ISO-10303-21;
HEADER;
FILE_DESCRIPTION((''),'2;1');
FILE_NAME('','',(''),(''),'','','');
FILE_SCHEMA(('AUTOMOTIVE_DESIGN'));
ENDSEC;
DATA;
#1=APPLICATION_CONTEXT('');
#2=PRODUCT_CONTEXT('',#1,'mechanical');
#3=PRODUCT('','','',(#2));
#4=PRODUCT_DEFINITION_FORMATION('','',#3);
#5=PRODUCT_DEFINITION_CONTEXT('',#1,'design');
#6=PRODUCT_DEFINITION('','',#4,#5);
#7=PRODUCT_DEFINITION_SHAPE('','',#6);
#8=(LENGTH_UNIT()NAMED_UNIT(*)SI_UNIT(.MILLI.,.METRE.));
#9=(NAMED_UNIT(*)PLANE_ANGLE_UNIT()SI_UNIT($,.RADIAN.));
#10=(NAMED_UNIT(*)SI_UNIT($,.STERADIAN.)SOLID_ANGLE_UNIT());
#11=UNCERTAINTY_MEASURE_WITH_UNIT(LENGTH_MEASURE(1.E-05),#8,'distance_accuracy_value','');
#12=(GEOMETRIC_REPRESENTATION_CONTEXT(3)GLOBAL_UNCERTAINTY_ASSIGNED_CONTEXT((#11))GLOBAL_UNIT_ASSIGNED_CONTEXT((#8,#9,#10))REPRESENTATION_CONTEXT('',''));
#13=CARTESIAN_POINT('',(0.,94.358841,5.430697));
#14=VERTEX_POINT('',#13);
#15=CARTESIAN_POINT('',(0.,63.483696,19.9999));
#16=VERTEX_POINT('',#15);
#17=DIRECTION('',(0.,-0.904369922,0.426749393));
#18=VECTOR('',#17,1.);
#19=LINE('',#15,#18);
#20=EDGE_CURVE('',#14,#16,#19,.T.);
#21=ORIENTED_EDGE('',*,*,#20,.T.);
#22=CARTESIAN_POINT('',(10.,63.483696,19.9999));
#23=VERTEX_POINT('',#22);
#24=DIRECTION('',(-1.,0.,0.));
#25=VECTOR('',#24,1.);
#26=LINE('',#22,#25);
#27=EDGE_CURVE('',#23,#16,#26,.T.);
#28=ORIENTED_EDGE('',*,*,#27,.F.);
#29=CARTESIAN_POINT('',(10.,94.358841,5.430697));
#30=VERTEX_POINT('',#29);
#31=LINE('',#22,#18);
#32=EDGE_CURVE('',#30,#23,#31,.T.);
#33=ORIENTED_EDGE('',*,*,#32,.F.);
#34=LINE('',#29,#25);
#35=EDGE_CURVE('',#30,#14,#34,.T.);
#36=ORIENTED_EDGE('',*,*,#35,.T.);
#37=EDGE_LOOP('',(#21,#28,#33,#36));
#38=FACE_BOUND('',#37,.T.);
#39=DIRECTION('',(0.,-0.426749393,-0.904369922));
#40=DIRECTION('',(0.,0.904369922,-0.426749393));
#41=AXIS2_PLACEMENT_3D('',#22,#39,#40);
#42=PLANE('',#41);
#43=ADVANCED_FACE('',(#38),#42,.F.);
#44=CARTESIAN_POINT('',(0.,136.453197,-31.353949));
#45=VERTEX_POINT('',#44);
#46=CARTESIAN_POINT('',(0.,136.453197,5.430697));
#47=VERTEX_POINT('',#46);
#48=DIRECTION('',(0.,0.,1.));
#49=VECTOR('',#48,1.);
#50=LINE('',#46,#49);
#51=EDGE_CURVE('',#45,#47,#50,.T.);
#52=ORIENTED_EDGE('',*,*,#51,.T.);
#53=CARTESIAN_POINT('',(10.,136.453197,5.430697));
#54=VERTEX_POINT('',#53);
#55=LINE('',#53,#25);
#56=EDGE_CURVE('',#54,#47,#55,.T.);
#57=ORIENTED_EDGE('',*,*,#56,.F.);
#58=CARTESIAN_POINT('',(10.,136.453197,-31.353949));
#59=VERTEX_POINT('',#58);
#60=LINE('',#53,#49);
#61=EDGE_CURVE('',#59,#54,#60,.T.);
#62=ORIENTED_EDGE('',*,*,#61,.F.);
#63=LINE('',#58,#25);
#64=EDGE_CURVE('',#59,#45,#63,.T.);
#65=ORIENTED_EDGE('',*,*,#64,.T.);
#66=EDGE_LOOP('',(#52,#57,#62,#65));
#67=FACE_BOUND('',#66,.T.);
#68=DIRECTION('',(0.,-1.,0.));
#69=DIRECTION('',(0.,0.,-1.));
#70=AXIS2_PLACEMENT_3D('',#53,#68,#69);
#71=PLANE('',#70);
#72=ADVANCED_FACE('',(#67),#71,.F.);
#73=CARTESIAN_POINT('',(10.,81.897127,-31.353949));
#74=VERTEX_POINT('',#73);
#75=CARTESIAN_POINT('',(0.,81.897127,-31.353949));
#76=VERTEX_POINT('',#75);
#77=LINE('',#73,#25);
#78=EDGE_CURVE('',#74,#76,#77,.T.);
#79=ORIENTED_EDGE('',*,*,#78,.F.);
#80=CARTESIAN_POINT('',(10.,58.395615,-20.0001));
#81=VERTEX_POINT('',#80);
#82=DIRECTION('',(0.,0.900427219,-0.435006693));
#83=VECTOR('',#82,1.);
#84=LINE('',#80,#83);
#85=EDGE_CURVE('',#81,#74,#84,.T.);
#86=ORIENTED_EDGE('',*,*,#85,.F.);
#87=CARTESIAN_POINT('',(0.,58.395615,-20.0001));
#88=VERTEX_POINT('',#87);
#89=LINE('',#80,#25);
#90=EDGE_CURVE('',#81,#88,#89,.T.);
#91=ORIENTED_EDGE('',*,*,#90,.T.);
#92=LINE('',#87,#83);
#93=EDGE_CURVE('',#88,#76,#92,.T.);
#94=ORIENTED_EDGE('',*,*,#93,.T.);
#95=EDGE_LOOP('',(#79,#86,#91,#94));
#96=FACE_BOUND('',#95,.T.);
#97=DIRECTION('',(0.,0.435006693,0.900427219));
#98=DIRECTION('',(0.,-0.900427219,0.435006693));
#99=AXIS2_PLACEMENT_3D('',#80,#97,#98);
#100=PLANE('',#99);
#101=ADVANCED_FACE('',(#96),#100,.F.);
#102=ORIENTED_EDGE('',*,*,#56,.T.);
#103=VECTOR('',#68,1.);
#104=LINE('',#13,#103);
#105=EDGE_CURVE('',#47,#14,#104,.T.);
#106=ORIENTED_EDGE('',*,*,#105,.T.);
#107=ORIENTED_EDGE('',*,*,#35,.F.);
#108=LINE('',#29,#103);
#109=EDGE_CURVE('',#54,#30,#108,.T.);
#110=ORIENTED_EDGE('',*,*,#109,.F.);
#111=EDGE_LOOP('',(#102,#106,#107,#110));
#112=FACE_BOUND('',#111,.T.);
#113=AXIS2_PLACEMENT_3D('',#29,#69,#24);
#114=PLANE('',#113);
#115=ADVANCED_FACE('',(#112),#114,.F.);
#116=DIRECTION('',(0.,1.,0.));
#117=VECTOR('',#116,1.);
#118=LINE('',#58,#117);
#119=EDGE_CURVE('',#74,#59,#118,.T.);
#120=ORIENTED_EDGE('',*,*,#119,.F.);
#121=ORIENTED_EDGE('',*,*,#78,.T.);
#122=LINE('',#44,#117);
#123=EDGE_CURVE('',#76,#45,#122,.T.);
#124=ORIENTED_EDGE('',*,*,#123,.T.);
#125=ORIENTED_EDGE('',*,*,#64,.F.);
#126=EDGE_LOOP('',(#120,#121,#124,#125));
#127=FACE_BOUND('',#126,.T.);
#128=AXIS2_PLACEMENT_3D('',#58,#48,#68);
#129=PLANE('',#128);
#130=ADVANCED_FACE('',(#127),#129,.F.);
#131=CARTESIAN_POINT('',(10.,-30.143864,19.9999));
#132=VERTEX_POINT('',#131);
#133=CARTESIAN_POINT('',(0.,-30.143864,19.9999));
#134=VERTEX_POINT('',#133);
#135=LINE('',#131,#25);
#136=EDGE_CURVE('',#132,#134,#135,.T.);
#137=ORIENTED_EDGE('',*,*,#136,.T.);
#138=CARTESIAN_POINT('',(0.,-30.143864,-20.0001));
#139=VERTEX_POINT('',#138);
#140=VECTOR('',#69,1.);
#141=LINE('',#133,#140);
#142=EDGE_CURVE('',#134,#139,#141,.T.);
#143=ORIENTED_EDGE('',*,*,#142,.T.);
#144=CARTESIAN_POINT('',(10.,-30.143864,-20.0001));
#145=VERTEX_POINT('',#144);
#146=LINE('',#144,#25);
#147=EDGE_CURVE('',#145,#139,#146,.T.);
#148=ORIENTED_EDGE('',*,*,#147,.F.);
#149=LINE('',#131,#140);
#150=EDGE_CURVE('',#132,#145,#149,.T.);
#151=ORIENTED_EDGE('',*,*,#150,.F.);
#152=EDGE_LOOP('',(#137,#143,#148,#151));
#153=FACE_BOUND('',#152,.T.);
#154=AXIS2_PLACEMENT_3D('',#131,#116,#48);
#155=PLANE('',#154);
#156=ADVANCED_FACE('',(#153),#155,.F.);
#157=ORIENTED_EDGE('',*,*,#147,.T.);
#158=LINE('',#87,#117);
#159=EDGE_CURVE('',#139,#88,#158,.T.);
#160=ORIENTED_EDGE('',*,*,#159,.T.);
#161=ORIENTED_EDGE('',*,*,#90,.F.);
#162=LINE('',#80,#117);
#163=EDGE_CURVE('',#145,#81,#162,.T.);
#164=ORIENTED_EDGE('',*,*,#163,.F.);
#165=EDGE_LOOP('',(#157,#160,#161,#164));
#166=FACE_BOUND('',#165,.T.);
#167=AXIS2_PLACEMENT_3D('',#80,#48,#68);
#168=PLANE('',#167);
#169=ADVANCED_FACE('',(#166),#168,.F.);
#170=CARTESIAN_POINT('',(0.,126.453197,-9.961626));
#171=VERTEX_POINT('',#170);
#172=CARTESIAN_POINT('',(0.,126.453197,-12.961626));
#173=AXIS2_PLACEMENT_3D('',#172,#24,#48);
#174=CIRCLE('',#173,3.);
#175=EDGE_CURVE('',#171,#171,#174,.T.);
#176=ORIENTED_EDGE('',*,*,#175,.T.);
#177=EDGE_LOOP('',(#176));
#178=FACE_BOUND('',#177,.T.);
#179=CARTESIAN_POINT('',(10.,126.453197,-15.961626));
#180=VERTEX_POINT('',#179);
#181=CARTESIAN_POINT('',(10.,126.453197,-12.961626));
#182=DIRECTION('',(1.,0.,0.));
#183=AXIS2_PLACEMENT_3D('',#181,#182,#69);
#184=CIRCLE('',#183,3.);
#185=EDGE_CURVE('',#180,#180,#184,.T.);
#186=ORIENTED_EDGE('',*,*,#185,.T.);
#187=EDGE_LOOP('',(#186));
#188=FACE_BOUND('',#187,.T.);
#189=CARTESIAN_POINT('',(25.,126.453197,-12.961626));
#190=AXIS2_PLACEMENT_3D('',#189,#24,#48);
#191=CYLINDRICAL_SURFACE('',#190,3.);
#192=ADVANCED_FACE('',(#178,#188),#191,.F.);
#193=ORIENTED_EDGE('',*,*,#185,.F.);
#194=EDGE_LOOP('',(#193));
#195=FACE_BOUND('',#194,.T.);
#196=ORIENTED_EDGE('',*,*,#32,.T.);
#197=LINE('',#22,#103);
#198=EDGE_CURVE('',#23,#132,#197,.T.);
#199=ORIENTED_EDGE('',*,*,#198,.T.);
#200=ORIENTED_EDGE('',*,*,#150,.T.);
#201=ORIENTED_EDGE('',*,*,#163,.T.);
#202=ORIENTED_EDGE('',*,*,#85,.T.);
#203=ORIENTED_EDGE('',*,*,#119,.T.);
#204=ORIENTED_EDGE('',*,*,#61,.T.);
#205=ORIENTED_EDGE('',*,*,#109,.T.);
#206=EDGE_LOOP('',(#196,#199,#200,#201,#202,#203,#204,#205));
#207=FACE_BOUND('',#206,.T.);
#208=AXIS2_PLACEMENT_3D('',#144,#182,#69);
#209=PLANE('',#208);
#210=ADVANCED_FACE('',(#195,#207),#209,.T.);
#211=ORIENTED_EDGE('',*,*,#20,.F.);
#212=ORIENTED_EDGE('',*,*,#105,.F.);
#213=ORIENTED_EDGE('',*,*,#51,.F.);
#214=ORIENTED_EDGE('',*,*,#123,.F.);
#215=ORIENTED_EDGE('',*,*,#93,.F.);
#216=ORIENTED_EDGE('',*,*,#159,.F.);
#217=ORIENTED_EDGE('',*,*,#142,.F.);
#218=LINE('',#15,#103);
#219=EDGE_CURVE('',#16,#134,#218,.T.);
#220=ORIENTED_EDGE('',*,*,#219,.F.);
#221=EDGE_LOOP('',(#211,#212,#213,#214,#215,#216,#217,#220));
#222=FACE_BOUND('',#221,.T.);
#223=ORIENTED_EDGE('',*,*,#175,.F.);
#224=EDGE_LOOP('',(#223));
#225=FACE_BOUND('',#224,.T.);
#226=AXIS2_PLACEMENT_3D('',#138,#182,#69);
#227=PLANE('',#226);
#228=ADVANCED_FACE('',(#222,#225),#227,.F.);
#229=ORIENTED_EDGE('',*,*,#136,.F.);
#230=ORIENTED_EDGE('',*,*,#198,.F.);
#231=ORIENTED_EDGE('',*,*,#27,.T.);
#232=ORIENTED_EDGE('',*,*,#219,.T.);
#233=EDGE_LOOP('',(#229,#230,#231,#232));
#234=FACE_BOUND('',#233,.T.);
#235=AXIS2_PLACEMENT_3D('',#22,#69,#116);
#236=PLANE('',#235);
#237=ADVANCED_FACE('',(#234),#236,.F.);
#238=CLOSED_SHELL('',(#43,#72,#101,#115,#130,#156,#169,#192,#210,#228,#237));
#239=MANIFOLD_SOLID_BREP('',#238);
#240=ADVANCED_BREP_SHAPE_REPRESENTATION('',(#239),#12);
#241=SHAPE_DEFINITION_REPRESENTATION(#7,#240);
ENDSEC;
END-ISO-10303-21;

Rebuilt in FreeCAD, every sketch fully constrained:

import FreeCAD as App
import Part
import Sketcher

V = App.Vector

doc = App.newDocument("Part")
body = doc.addObject("PartDesign::Body", "Body")

# Sketch on YZ plane
sketch1 = body.newObject("Sketcher::SketchObject", "Sketch")
sketch1.AttachmentSupport = (doc.getObject("YZ_Plane"), [""])
sketch1.MapMode = "FlatFace"
sketch1.addGeometry(Part.LineSegment(V(94, 5, 0), V(63, 20, 0)), False)
sketch1.addGeometry(Part.LineSegment(V(63, 20, 0), V(-30, 20, 0)), False)
sketch1.addGeometry(Part.LineSegment(V(-30, 20, 0), V(-30, -20, 0)), False)
sketch1.addGeometry(Part.LineSegment(V(-30, -20, 0), V(58, -20, 0)), False)
sketch1.addGeometry(Part.LineSegment(V(58, -20, 0), V(82, -31, 0)), False)
sketch1.addGeometry(Part.LineSegment(V(82, -31, 0), V(136, -31, 0)), False)
sketch1.addGeometry(Part.LineSegment(V(136, -31, 0), V(136, 5, 0)), False)
sketch1.addGeometry(Part.LineSegment(V(136, 5, 0), V(94, 5, 0)), False)
sketch1.addConstraint(Sketcher.Constraint("Coincident", 0, 2, 1, 1))
sketch1.addConstraint(Sketcher.Constraint("Coincident", 1, 2, 2, 1))
sketch1.addConstraint(Sketcher.Constraint("Coincident", 2, 2, 3, 1))
sketch1.addConstraint(Sketcher.Constraint("Coincident", 3, 2, 4, 1))
sketch1.addConstraint(Sketcher.Constraint("Coincident", 4, 2, 5, 1))
sketch1.addConstraint(Sketcher.Constraint("Coincident", 5, 2, 6, 1))
sketch1.addConstraint(Sketcher.Constraint("Coincident", 6, 2, 7, 1))
sketch1.addConstraint(Sketcher.Constraint("Coincident", 7, 2, 0, 1))
sketch1.addConstraint(Sketcher.Constraint("Horizontal", 1))
sketch1.addConstraint(Sketcher.Constraint("Vertical", 2))
sketch1.addConstraint(Sketcher.Constraint("Horizontal", 3))
sketch1.addConstraint(Sketcher.Constraint("Horizontal", 5))
sketch1.addConstraint(Sketcher.Constraint("Vertical", 6))
sketch1.addConstraint(Sketcher.Constraint("Horizontal", 7))
sketch1.addConstraint(Sketcher.Constraint("DistanceY", 2, 2, 2, 1, 40.0))
sketch1.addConstraint(Sketcher.Constraint("Distance", 4, 26.100402))
sketch1.addConstraint(Sketcher.Constraint("DistanceX", 1, 2, 1, 1, 93.627559))
sketch1.addConstraint(Sketcher.Constraint("DistanceX", 3, 1, 3, 2, 88.539478))
sketch1.addConstraint(Sketcher.Constraint("DistanceX", 5, 1, 5, 2, 54.556071))
sketch1.addConstraint(Sketcher.Constraint("DistanceY", -1, 1, 0, 2, 19.9999))
sketch1.addConstraint(Sketcher.Constraint("DistanceX", 0, 2, 5, 2, 72.969502))
sketch1.addConstraint(Sketcher.Constraint("Distance", 0, 34.139951))
sketch1.addConstraint(Sketcher.Constraint("DistanceX", 7, 2, 7, 1, 42.094356))
sketch1.addConstraint(Sketcher.Constraint("DistanceX", -1, 1, 7, 2, 94.358841))
pad1 = body.newObject("PartDesign::Pad", "Pad")
pad1.Profile = sketch1
pad1.Length = 10

# Sketch on YZ plane
sketch2 = body.newObject("Sketcher::SketchObject", "Sketch001")
sketch2.AttachmentSupport = (doc.getObject("YZ_Plane"), [""])
sketch2.MapMode = "FlatFace"
sketch2.addGeometry(Part.Circle(V(126.5, -13, 0), V(0, 0, 1), 3), False)
sketch2.addConstraint(Sketcher.Constraint("Diameter", 0, 6.0))
sketch2.addConstraint(Sketcher.Constraint("DistanceX", -1, 1, 0, 3, 126.453197))
sketch2.addConstraint(Sketcher.Constraint("DistanceY", 0, 3, -1, 1, 12.961626))
pocket1 = body.newObject("PartDesign::Pocket", "Pocket")
pocket1.Profile = sketch2
pocket1.Length = 25
pocket1.Reversed = True

doc.recompute()
